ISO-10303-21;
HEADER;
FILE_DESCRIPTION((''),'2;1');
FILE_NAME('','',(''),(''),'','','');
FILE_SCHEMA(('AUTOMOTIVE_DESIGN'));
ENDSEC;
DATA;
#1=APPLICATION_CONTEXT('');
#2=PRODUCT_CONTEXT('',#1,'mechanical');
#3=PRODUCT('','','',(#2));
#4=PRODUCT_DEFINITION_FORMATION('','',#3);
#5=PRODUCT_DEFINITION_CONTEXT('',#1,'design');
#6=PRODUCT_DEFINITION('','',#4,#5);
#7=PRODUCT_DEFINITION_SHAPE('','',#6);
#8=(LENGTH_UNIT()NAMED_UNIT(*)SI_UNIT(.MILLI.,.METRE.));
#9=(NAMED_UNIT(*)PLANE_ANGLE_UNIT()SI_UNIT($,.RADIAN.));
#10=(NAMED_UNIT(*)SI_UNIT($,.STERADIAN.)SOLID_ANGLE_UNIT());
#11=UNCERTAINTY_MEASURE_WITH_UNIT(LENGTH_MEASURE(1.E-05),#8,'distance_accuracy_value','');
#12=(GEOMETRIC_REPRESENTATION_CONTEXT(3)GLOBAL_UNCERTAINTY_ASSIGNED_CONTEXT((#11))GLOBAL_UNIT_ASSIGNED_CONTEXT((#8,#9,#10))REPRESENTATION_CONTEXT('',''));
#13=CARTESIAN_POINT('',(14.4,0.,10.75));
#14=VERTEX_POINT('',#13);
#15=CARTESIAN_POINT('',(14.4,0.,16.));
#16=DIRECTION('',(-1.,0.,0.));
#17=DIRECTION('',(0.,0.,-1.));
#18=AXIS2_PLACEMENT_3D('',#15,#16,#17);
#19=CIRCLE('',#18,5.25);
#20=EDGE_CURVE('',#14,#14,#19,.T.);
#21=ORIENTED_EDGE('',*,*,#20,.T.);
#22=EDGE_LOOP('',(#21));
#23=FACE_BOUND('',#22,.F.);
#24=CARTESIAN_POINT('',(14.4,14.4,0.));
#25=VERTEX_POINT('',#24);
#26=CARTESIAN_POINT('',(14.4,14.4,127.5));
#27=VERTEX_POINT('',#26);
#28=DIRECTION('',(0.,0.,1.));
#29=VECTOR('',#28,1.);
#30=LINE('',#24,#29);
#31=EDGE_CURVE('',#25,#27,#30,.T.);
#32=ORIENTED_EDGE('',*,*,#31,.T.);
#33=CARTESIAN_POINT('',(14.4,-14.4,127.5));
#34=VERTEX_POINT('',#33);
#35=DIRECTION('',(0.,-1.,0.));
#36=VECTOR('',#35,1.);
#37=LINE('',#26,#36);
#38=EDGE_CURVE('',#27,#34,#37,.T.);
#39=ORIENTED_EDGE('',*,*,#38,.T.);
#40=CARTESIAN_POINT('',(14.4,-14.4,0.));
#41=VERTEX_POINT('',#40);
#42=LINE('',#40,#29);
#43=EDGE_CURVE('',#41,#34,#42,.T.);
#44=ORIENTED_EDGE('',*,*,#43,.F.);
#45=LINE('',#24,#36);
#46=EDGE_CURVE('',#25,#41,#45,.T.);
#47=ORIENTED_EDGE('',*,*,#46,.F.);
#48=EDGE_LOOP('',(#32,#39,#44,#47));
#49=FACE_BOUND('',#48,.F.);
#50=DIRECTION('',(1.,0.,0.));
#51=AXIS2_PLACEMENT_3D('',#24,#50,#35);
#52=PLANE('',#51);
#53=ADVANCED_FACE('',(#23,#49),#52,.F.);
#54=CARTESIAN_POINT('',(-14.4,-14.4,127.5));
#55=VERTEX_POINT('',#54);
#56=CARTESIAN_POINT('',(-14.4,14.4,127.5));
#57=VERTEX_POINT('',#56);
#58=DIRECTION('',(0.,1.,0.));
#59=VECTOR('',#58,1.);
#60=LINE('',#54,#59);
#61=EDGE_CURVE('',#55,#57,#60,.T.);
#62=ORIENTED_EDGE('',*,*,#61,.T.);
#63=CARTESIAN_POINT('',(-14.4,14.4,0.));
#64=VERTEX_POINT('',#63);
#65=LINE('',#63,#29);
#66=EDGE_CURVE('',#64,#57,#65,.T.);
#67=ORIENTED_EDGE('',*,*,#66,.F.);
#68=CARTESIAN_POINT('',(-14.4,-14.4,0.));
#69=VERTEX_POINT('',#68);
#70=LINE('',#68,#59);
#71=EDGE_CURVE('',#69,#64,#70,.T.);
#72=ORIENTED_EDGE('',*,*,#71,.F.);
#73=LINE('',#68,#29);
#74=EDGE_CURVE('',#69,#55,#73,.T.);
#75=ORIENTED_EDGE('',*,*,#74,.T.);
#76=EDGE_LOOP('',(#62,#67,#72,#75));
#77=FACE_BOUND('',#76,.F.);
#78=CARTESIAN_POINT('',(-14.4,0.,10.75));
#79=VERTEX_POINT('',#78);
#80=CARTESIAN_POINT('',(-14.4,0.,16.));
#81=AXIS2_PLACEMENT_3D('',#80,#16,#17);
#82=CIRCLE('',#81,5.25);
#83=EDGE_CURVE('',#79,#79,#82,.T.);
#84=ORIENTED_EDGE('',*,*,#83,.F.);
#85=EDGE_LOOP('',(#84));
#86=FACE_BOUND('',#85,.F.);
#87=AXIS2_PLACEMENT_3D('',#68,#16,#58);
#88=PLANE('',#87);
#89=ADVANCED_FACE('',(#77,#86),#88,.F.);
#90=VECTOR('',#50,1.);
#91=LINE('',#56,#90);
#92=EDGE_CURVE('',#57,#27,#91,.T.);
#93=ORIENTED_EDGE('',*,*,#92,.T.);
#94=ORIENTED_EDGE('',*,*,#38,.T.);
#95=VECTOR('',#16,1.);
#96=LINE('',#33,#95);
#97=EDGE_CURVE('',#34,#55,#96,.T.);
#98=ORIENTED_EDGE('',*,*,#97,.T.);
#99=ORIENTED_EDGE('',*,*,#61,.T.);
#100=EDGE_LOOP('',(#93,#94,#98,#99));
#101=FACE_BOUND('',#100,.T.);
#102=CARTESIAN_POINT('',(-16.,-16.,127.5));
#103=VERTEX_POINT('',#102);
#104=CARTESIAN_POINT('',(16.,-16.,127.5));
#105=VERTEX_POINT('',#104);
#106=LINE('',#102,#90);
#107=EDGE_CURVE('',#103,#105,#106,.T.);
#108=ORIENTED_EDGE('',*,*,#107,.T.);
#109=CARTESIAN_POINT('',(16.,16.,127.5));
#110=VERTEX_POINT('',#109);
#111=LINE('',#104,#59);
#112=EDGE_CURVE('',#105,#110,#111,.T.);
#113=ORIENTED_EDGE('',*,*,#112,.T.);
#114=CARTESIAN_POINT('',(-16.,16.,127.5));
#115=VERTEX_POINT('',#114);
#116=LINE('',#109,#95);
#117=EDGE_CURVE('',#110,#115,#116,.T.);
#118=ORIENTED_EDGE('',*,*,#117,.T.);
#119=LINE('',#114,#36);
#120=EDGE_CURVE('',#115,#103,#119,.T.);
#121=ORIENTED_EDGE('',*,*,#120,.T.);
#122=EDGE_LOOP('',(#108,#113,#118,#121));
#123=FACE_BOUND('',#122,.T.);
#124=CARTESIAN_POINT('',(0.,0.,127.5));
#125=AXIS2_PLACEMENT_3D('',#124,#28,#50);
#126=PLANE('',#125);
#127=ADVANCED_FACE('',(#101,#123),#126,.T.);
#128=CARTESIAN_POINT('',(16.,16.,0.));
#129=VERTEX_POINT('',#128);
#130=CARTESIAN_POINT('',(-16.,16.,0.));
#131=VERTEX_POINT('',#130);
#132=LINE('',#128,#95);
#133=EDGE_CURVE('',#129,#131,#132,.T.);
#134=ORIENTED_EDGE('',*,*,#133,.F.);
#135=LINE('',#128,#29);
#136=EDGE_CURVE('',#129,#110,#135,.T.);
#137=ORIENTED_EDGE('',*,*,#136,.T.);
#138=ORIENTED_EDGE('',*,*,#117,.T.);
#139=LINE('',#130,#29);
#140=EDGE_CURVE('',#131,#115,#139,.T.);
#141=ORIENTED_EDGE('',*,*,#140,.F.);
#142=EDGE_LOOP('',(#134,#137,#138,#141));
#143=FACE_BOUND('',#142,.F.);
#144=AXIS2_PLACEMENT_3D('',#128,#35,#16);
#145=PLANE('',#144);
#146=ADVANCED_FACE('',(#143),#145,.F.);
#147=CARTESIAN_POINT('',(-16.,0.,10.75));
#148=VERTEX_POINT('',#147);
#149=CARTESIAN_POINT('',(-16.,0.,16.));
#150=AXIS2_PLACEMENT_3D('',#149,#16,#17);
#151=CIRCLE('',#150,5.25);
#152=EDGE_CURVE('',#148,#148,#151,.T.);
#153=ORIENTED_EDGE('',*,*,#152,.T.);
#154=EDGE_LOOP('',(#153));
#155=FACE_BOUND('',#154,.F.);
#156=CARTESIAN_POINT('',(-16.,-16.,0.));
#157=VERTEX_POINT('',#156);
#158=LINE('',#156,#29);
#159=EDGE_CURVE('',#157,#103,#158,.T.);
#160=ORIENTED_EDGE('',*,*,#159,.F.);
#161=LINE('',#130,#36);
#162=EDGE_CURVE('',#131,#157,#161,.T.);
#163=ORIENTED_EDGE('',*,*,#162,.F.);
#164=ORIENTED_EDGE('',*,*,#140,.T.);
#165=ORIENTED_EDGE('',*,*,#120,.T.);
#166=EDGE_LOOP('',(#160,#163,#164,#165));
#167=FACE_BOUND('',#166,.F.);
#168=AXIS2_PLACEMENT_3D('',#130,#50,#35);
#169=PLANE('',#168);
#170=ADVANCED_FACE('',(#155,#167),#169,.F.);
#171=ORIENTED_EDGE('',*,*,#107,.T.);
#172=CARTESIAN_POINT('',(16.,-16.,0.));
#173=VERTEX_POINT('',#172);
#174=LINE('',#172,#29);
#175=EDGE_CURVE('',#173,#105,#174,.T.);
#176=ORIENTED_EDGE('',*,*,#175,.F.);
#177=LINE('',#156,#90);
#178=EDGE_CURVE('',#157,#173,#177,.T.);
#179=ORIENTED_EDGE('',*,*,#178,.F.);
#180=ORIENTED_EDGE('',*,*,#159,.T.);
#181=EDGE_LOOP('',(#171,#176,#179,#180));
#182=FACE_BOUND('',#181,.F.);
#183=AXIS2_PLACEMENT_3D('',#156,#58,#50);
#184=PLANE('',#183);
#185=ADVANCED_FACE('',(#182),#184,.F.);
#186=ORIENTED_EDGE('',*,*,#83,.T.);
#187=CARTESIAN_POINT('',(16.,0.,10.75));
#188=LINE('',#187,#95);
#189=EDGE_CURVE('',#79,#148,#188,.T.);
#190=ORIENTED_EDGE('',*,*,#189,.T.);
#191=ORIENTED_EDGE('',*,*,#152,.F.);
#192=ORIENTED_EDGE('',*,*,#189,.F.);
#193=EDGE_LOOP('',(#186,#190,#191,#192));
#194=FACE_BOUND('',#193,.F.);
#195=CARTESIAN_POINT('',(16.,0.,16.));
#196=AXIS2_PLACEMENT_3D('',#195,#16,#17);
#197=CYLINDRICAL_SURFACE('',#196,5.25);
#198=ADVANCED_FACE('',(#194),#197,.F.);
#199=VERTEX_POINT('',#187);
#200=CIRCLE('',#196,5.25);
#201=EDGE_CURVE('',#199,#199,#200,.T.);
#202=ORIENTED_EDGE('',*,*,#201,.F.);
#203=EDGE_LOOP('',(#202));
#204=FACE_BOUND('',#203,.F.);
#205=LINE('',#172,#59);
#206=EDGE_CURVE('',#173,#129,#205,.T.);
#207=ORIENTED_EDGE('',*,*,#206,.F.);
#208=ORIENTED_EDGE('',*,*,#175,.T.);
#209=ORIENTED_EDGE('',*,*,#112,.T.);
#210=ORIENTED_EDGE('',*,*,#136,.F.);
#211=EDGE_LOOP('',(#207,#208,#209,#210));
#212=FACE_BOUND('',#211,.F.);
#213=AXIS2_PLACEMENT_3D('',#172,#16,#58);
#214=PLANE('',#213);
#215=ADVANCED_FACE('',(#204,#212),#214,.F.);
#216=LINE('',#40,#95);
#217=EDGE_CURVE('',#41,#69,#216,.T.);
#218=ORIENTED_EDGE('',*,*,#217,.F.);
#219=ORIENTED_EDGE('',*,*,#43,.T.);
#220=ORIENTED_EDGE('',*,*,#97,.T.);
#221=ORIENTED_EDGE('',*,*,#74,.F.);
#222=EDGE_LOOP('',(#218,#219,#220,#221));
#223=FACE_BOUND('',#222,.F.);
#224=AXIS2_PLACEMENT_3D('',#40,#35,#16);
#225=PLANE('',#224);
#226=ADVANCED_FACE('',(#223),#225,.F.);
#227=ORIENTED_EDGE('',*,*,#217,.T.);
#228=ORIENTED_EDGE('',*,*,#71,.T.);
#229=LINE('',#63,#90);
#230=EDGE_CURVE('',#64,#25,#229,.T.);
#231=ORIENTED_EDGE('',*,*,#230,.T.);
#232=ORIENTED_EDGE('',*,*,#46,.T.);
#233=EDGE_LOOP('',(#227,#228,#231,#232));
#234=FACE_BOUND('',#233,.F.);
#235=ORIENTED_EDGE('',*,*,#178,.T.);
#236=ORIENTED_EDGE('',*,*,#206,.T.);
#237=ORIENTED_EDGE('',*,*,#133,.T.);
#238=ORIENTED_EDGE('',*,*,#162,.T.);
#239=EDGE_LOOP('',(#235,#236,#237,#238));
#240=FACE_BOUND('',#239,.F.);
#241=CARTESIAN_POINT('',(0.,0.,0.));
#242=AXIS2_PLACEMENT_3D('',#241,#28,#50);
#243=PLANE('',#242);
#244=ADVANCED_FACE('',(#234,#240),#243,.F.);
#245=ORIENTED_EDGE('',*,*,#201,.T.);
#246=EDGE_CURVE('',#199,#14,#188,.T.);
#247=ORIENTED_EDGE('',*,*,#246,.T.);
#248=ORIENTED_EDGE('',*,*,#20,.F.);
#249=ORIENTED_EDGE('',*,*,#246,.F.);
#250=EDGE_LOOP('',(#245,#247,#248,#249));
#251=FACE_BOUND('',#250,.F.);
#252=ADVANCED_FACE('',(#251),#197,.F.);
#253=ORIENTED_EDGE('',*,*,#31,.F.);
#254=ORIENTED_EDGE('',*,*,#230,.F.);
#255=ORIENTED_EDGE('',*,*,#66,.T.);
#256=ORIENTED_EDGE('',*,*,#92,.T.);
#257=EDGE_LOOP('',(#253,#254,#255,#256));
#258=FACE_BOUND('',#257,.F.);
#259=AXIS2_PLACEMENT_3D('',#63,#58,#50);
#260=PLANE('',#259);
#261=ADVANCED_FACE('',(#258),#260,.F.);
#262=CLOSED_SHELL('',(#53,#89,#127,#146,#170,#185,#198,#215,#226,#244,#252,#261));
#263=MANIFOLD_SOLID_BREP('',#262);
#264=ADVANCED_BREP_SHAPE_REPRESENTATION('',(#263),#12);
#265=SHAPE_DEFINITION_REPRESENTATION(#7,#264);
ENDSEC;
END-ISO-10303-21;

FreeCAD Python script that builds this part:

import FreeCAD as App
import Part
import Sketcher

V = App.Vector


def add_polygon(sketch, points):
    """Adds a closed chain of lines whose ends are joined by coincident constraints."""
    first, n = sketch.GeometryCount, len(points)
    for a, b in zip(points, points[1:] + points[:1]):
        sketch.addGeometry(Part.LineSegment(App.Vector(*a, 0), App.Vector(*b, 0)), False)
    for i in range(n):
        sketch.addConstraint(Sketcher.Constraint("Coincident", first + i, 2, first + (i + 1) % n, 1))

doc = App.newDocument("Part")
body = doc.addObject("PartDesign::Body", "Body")

sketch1 = body.newObject("Sketcher::SketchObject", "Sketch")
sketch1.AttachmentSupport = (doc.getObject("XY_Plane"), [""])
sketch1.MapMode = "FlatFace"
add_polygon(sketch1, [(-16, 16), (-16, -16), (16, -16), (16, 16)])
add_polygon(sketch1, [(-14.4, -14.4), (-14.4, 14.4), (14.4, 14.4), (14.4, -14.4)])
sketch1.addConstraint(Sketcher.Constraint("Vertical", 0))
sketch1.addConstraint(Sketcher.Constraint("Horizontal", 1))
sketch1.addConstraint(Sketcher.Constraint("Vertical", 2))
sketch1.addConstraint(Sketcher.Constraint("Horizontal", 3))
sketch1.addConstraint(Sketcher.Constraint("Vertical", 4))
sketch1.addConstraint(Sketcher.Constraint("Horizontal", 5))
sketch1.addConstraint(Sketcher.Constraint("Vertical", 6))
sketch1.addConstraint(Sketcher.Constraint("Horizontal", 7))
sketch1.addConstraint(Sketcher.Constraint("Symmetric", 0, 2, 2, 2, -1, 1))
sketch1.addConstraint(Sketcher.Constraint("Symmetric", 4, 2, 6, 2, -1, 1))
sketch1.addConstraint(Sketcher.Constraint("Equal", 3, 0))
sketch1.addConstraint(Sketcher.Constraint("Equal", 7, 4))
sketch1.addConstraint(Sketcher.Constraint("DistanceX", 1, 1, 1, 2, 32.0))
sketch1.addConstraint(Sketcher.Constraint("DistanceX", 3, 2, 4, 2, 1.6))
pad1 = body.newObject("PartDesign::Pad", "Pad")
pad1.Profile = sketch1
pad1.Length = 127.5

sketch2 = body.newObject("Sketcher::SketchObject", "Sketch001")
sketch2.AttachmentSupport = (doc.getObject("YZ_Plane"), [""])
sketch2.MapMode = "FlatFace"
sketch2.AttachmentOffset = App.Placement(V(0, 0, 16), App.Rotation())
sketch2.addGeometry(Part.Circle(V(0, 16, 0), V(0, 0, 1), 5.25), False)
sketch2.addConstraint(Sketcher.Constraint("PointOnObject", 0, 3, -2))
sketch2.addConstraint(Sketcher.Constraint("Diameter", 0, 10.5))
sketch2.addConstraint(Sketcher.Constraint("DistanceY", -1, 1, 0, 3, 16.0))
doc.recompute()
hole = body.newObject("PartDesign::Hole", "Hole")
hole.Profile = sketch2
hole.ThreadType = "None"
hole.Diameter = 10.5
hole.DepthType = "ThroughAll"

doc.recompute()
